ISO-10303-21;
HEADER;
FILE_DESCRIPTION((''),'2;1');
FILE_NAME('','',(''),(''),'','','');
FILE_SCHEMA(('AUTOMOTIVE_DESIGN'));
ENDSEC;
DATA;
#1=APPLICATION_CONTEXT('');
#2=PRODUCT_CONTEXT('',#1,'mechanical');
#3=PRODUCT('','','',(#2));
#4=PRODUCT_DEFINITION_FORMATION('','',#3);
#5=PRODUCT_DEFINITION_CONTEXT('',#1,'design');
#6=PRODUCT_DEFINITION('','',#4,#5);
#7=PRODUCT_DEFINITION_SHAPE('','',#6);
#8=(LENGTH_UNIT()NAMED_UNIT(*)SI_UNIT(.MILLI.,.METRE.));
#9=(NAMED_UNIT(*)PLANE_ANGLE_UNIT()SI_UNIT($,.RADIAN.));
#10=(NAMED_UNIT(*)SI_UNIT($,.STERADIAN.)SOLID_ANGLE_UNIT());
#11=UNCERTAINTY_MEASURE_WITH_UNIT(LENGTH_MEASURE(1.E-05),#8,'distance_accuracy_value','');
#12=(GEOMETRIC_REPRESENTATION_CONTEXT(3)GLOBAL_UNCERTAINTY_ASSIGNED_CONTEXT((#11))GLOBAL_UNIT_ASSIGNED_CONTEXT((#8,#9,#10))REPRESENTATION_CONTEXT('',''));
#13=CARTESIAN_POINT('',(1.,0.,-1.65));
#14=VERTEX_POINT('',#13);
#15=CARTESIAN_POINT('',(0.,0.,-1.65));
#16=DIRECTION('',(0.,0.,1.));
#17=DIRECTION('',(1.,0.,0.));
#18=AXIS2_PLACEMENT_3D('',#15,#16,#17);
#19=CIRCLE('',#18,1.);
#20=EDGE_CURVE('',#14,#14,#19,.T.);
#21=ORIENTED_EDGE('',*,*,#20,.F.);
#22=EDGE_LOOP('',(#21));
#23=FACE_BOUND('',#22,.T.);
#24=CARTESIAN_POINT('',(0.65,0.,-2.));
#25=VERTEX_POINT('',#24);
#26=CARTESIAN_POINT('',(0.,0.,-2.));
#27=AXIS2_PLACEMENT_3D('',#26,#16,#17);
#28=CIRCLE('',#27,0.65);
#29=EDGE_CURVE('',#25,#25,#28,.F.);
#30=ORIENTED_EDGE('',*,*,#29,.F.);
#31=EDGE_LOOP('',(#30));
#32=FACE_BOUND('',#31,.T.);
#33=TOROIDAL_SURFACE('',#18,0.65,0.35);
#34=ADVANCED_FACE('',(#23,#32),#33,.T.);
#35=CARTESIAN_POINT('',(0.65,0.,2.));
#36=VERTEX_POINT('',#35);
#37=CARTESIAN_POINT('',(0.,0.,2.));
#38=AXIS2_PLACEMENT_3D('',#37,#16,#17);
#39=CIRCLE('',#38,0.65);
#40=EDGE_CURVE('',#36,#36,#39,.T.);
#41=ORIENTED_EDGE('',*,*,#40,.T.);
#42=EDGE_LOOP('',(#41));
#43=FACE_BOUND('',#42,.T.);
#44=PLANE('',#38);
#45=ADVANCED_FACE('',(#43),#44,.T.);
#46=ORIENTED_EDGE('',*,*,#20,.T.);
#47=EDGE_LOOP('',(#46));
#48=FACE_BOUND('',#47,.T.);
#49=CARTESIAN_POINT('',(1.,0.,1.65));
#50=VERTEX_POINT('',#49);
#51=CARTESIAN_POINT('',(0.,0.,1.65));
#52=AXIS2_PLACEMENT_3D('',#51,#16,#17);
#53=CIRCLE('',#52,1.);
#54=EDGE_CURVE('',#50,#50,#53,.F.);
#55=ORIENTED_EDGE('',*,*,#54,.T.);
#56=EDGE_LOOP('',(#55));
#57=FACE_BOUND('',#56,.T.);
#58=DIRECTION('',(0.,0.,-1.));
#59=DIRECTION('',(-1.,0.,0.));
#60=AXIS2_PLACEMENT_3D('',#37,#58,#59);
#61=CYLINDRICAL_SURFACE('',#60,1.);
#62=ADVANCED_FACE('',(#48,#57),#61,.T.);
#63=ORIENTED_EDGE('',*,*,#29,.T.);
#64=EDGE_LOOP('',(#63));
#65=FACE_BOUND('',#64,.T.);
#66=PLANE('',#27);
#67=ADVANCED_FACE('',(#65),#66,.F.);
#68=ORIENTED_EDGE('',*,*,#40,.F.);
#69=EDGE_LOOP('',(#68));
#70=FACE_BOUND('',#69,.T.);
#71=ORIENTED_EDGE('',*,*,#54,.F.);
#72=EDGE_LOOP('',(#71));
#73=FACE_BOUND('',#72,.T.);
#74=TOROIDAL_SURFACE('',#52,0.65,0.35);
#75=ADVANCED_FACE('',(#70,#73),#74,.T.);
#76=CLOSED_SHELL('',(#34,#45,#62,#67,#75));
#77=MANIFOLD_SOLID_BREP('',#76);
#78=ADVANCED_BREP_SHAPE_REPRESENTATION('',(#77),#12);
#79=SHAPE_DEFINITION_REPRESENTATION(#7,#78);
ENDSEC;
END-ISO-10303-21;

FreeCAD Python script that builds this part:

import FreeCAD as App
import Part
import Sketcher


def edges_at(feature, points):
    """Names of the edges that pass closest to the given points."""
    edges = feature.Shape.Edges
    near = lambda p: min(range(len(edges)), key=lambda i: edges[i].distToShape(Part.Vertex(*p))[0])
    return sorted({f"Edge{near(p) + 1}" for p in points})

doc = App.newDocument("Part")
body = doc.addObject("PartDesign::Body", "Body")

sketch1 = body.newObject("Sketcher::SketchObject", "Sketch")
sketch1.AttachmentSupport = (doc.getObject("XY_Plane"), [""])
sketch1.MapMode = "FlatFace"
sketch1.addGeometry(Part.Circle(App.Vector(0, 0, 0), App.Vector(0, 0, 1), 1), False)
sketch1.addConstraint(Sketcher.Constraint("Coincident", 0, 3, -1, 1))
sketch1.addConstraint(Sketcher.Constraint("Diameter", 0, 2.0))
pad1 = body.newObject("PartDesign::Pad", "Pad")
pad1.Profile = sketch1
pad1.Length = 4
pad1.Midplane = True
doc.recompute()

fillet = body.newObject("PartDesign::Fillet", "Fillet")
fillet.Base = (pad1, edges_at(pad1, [(-1, 0, -2), (-1, 0, 2)]))
fillet.Radius = 0.35

doc.recompute()
